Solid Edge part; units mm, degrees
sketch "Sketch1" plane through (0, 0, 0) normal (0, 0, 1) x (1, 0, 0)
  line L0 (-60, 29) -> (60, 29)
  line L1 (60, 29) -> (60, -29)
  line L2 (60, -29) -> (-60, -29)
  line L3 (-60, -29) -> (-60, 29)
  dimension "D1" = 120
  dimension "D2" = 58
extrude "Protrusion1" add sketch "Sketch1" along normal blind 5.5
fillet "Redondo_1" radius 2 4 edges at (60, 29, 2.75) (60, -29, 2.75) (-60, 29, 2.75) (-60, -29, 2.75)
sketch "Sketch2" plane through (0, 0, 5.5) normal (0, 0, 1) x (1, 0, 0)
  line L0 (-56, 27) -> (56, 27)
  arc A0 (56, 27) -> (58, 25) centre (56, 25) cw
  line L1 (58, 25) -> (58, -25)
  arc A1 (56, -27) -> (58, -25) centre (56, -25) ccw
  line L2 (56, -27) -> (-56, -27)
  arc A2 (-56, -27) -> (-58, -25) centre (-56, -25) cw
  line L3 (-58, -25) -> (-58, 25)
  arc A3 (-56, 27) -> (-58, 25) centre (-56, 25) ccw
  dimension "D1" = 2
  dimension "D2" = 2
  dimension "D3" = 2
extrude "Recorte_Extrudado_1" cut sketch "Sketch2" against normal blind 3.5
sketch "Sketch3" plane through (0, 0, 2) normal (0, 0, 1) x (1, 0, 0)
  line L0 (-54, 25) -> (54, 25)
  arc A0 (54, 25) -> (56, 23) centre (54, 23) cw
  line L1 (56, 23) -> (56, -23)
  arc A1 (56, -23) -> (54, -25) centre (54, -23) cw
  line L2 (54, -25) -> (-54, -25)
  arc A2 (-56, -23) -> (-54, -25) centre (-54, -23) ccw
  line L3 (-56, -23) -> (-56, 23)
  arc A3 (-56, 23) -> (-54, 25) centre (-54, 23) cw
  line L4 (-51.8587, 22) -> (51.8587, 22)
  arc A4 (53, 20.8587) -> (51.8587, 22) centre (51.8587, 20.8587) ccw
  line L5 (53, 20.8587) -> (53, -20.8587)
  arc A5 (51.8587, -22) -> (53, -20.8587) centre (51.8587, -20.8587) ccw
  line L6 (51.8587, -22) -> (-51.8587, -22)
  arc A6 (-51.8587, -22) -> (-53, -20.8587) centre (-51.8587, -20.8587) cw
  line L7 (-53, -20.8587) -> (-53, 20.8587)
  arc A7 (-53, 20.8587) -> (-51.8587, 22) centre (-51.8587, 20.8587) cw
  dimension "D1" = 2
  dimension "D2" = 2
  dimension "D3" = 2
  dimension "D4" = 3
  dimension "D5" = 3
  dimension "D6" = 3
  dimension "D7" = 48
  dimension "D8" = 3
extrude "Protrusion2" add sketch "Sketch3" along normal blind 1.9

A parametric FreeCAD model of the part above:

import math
import FreeCAD as App
import Part
import Sketcher


def edges_at(feature, points):
    """Names of the edges that pass closest to the given points."""
    edges = feature.Shape.Edges
    near = lambda p: min(range(len(edges)), key=lambda i: edges[i].distToShape(Part.Vertex(*p))[0])
    return sorted({f"Edge{near(p) + 1}" for p in points})


def add_polygon(sketch, points):
    """Adds a closed chain of lines whose ends are joined by coincident constraints."""
    first, n = sketch.GeometryCount, len(points)
    for a, b in zip(points, points[1:] + points[:1]):
        sketch.addGeometry(Part.LineSegment(App.Vector(*a, 0), App.Vector(*b, 0)), False)
    for i in range(n):
        sketch.addConstraint(Sketcher.Constraint("Coincident", first + i, 2, first + (i + 1) % n, 1))

doc = App.newDocument("Part")
body = doc.addObject("PartDesign::Body", "Body")

# Sketch on XY plane
sketch1 = body.newObject("Sketcher::SketchObject", "Sketch")
sketch1.AttachmentSupport = (doc.getObject("XY_Plane"), [""])
sketch1.MapMode = "FlatFace"
add_polygon(sketch1, [(60, 29), (-60, 29), (-60, -29), (60, -29)])  # lines 0-3
sketch1.addConstraint(Sketcher.Constraint("Horizontal", 0))
sketch1.addConstraint(Sketcher.Constraint("Vertical", 1))
sketch1.addConstraint(Sketcher.Constraint("Horizontal", 2))
sketch1.addConstraint(Sketcher.Constraint("Vertical", 3))
sketch1.addConstraint(Sketcher.Constraint("Symmetric", 0, 2, 2, 2, -1, 1))
sketch1.addConstraint(Sketcher.Constraint("DistanceX", 0, 2, -1, 1, 60.0))
sketch1.addConstraint(Sketcher.Constraint("DistanceY", 1, 2, 1, 1, 58.0))
pad1 = body.newObject("PartDesign::Pad", "Pad")
pad1.Profile = sketch1
pad1.Length = 5.5
doc.recompute()

fillet = body.newObject("PartDesign::Fillet", "Fillet")
fillet.Base = (pad1, edges_at(pad1, [
    (60, 29, 2.75),
    (60, -29, 2.75),
    (-60, 29, 2.75),
    (-60, -29, 2.75),
]))
fillet.Radius = 2

# Sketch on XY plane
sketch2 = body.newObject("Sketcher::SketchObject", "Sketch001")
sketch2.AttachmentSupport = (doc.getObject("XY_Plane"), [""])
sketch2.MapMode = "FlatFace"
sketch2.AttachmentOffset = App.Placement(App.Vector(0, 0, 5.5), App.Rotation())
sketch2.addGeometry(Part.LineSegment(App.Vector(56, 27, 0), App.Vector(-56, 27, 0)), False)
sketch2.addGeometry(Part.ArcOfCircle(Part.Circle(App.Vector(-56, 25, 0), App.Vector(0, 0, 1), 2), math.radians(90), math.radians(180)), False)
sketch2.addGeometry(Part.LineSegment(App.Vector(-58, 25, 0), App.Vector(-58, -25, 0)), False)
sketch2.addGeometry(Part.ArcOfCircle(Part.Circle(App.Vector(-56, -25, 0), App.Vector(0, 0, 1), 2), math.radians(180), math.radians(270)), False)
sketch2.addGeometry(Part.LineSegment(App.Vector(-56, -27, 0), App.Vector(56, -27, 0)), False)
sketch2.addGeometry(Part.ArcOfCircle(Part.Circle(App.Vector(56, -25, 0), App.Vector(0, 0, 1), 2), math.radians(-90), math.radians(0)), False)
sketch2.addGeometry(Part.LineSegment(App.Vector(58, -25, 0), App.Vector(58, 25, 0)), False)
sketch2.addGeometry(Part.ArcOfCircle(Part.Circle(App.Vector(56, 25, 0), App.Vector(0, 0, 1), 2), math.radians(0), math.radians(90)), False)
sketch2.addConstraint(Sketcher.Constraint("Tangent", 0, 2, 1, 1))
sketch2.addConstraint(Sketcher.Constraint("Tangent", 1, 2, 2, 1))
sketch2.addConstraint(Sketcher.Constraint("Tangent", 2, 2, 3, 1))
sketch2.addConstraint(Sketcher.Constraint("Tangent", 3, 2, 4, 1))
sketch2.addConstraint(Sketcher.Constraint("Tangent", 4, 2, 5, 1))
sketch2.addConstraint(Sketcher.Constraint("Tangent", 5, 2, 6, 1))
sketch2.addConstraint(Sketcher.Constraint("Tangent", 6, 2, 7, 1))
sketch2.addConstraint(Sketcher.Constraint("Tangent", 7, 2, 0, 1))
sketch2.addConstraint(Sketcher.Constraint("Horizontal", 0))
sketch2.addConstraint(Sketcher.Constraint("Vertical", 2))
sketch2.addConstraint(Sketcher.Constraint("Horizontal", 4))
sketch2.addConstraint(Sketcher.Constraint("Vertical", 6))
sketch2.addConstraint(Sketcher.Constraint("Equal", 1, 3))
sketch2.addConstraint(Sketcher.Constraint("Equal", 3, 5))
sketch2.addConstraint(Sketcher.Constraint("Equal", 5, 7))
sketch2.addConstraint(Sketcher.Constraint("Symmetric", 1, 3, 5, 3, -1, 1))
sketch2.addConstraint(Sketcher.Constraint("Radius", 1, 2.0))
sketch2.addConstraint(Sketcher.Constraint("DistanceX", 0, 2, 0, 1, 112.0))
sketch2.addConstraint(Sketcher.Constraint("DistanceY", 2, 2, 2, 1, 50.0))
pocket1 = body.newObject("PartDesign::Pocket", "Pocket")
pocket1.Profile = sketch2
pocket1.Length = 3.5

# Sketch on XY plane
sketch3 = body.newObject("Sketcher::SketchObject", "Sketch002")
sketch3.AttachmentSupport = (doc.getObject("XY_Plane"), [""])
sketch3.MapMode = "FlatFace"
sketch3.AttachmentOffset = App.Placement(App.Vector(0, 0, 2), App.Rotation())
sketch3.addGeometry(Part.LineSegment(App.Vector(54, 25, 0), App.Vector(-54, 25, 0)), False)
sketch3.addGeometry(Part.ArcOfCircle(Part.Circle(App.Vector(-54, 23, 0), App.Vector(0, 0, 1), 2), math.radians(90), math.radians(180)), False)
sketch3.addGeometry(Part.LineSegment(App.Vector(-56, 23, 0), App.Vector(-56, -23, 0)), False)
sketch3.addGeometry(Part.ArcOfCircle(Part.Circle(App.Vector(-54, -23, 0), App.Vector(0, 0, 1), 2), math.radians(180), math.radians(270)), False)
sketch3.addGeometry(Part.LineSegment(App.Vector(-54, -25, 0), App.Vector(54, -25, 0)), False)
sketch3.addGeometry(Part.ArcOfCircle(Part.Circle(App.Vector(54, -23, 0), App.Vector(0, 0, 1), 2), math.radians(-90), math.radians(0)), False)
sketch3.addGeometry(Part.LineSegment(App.Vector(56, -23, 0), App.Vector(56, 23, 0)), False)
sketch3.addGeometry(Part.ArcOfCircle(Part.Circle(App.Vector(54, 23, 0), App.Vector(0, 0, 1), 2), math.radians(0), math.radians(90)), False)
sketch3.addGeometry(Part.ArcOfCircle(Part.Circle(App.Vector(-51.9, 20.9, 0), App.Vector(0, 0, 1), 1.1), math.radians(90), math.radians(180)), False)
sketch3.addGeometry(Part.LineSegment(App.Vector(-51.9, 22, 0), App.Vector(51.9, 22, 0)), False)
sketch3.addGeometry(Part.ArcOfCircle(Part.Circle(App.Vector(51.9, 20.9, 0), App.Vector(0, 0, 1), 1.1), math.radians(0), math.radians(90)), False)
sketch3.addGeometry(Part.LineSegment(App.Vector(53, 20.9, 0), App.Vector(53, -20.9, 0)), False)
sketch3.addGeometry(Part.ArcOfCircle(Part.Circle(App.Vector(51.9, -20.9, 0), App.Vector(0, 0, 1), 1.1), math.radians(-90), math.radians(0)), False)
sketch3.addGeometry(Part.LineSegment(App.Vector(51.9, -22, 0), App.Vector(-51.9, -22, 0)), False)
sketch3.addGeometry(Part.ArcOfCircle(Part.Circle(App.Vector(-51.9, -20.9, 0), App.Vector(0, 0, 1), 1.1), math.radians(180), math.radians(270)), False)
sketch3.addGeometry(Part.LineSegment(App.Vector(-53, -20.9, 0), App.Vector(-53, 20.9, 0)), False)
sketch3.addConstraint(Sketcher.Constraint("Tangent", 0, 2, 1, 1))
sketch3.addConstraint(Sketcher.Constraint("Tangent", 1, 2, 2, 1))
sketch3.addConstraint(Sketcher.Constraint("Tangent", 2, 2, 3, 1))
sketch3.addConstraint(Sketcher.Constraint("Tangent", 3, 2, 4, 1))
sketch3.addConstraint(Sketcher.Constraint("Tangent", 4, 2, 5, 1))
sketch3.addConstraint(Sketcher.Constraint("Tangent", 5, 2, 6, 1))
sketch3.addConstraint(Sketcher.Constraint("Tangent", 6, 2, 7, 1))
sketch3.addConstraint(Sketcher.Constraint("Tangent", 7, 2, 0, 1))
sketch3.addConstraint(Sketcher.Constraint("Tangent", 8, 1, 9, 1))
sketch3.addConstraint(Sketcher.Constraint("Tangent", 9, 2, 10, 2))
sketch3.addConstraint(Sketcher.Constraint("Tangent", 10, 1, 11, 1))
sketch3.addConstraint(Sketcher.Constraint("Tangent", 11, 2, 12, 2))
sketch3.addConstraint(Sketcher.Constraint("Tangent", 12, 1, 13, 1))
sketch3.addConstraint(Sketcher.Constraint("Tangent", 13, 2, 14, 2))
sketch3.addConstraint(Sketcher.Constraint("Tangent", 14, 1, 15, 1))
sketch3.addConstraint(Sketcher.Constraint("Tangent", 15, 2, 8, 2))
sketch3.addConstraint(Sketcher.Constraint("Horizontal", 0))
sketch3.addConstraint(Sketcher.Constraint("Vertical", 2))
sketch3.addConstraint(Sketcher.Constraint("Horizontal", 4))
sketch3.addConstraint(Sketcher.Constraint("Vertical", 6))
sketch3.addConstraint(Sketcher.Constraint("Horizontal", 9))
sketch3.addConstraint(Sketcher.Constraint("Vertical", 11))
sketch3.addConstraint(Sketcher.Constraint("Horizontal", 13))
sketch3.addConstraint(Sketcher.Constraint("Vertical", 15))
sketch3.addConstraint(Sketcher.Constraint("Equal", 1, 3))
sketch3.addConstraint(Sketcher.Constraint("Equal", 3, 5))
sketch3.addConstraint(Sketcher.Constraint("Equal", 5, 7))
sketch3.addConstraint(Sketcher.Constraint("Equal", 8, 10))
sketch3.addConstraint(Sketcher.Constraint("Equal", 10, 12))
sketch3.addConstraint(Sketcher.Constraint("Equal", 12, 14))
sketch3.addConstraint(Sketcher.Constraint("Symmetric", 1, 3, 5, 3, -1, 1))
sketch3.addConstraint(Sketcher.Constraint("Symmetric", 8, 3, 12, 3, -1, 1))
sketch3.addConstraint(Sketcher.Constraint("Radius", 1, 2.0))
sketch3.addConstraint(Sketcher.Constraint("DistanceX", 0, 2, 0, 1, 108.0))
sketch3.addConstraint(Sketcher.Constraint("DistanceY", 2, 2, 2, 1, 46.0))
sketch3.addConstraint(Sketcher.Constraint("DistanceY", -1, 1, 8, 1, 22.0))
sketch3.addConstraint(Sketcher.Constraint("DistanceX", -1, 1, 10, 1, 53.0))
sketch3.addConstraint(Sketcher.Constraint("Radius", 8, 1.1413))
pad2 = body.newObject("PartDesign::Pad", "Pad001")
pad2.Profile = sketch3
pad2.Length = 1.9

doc.recompute()
